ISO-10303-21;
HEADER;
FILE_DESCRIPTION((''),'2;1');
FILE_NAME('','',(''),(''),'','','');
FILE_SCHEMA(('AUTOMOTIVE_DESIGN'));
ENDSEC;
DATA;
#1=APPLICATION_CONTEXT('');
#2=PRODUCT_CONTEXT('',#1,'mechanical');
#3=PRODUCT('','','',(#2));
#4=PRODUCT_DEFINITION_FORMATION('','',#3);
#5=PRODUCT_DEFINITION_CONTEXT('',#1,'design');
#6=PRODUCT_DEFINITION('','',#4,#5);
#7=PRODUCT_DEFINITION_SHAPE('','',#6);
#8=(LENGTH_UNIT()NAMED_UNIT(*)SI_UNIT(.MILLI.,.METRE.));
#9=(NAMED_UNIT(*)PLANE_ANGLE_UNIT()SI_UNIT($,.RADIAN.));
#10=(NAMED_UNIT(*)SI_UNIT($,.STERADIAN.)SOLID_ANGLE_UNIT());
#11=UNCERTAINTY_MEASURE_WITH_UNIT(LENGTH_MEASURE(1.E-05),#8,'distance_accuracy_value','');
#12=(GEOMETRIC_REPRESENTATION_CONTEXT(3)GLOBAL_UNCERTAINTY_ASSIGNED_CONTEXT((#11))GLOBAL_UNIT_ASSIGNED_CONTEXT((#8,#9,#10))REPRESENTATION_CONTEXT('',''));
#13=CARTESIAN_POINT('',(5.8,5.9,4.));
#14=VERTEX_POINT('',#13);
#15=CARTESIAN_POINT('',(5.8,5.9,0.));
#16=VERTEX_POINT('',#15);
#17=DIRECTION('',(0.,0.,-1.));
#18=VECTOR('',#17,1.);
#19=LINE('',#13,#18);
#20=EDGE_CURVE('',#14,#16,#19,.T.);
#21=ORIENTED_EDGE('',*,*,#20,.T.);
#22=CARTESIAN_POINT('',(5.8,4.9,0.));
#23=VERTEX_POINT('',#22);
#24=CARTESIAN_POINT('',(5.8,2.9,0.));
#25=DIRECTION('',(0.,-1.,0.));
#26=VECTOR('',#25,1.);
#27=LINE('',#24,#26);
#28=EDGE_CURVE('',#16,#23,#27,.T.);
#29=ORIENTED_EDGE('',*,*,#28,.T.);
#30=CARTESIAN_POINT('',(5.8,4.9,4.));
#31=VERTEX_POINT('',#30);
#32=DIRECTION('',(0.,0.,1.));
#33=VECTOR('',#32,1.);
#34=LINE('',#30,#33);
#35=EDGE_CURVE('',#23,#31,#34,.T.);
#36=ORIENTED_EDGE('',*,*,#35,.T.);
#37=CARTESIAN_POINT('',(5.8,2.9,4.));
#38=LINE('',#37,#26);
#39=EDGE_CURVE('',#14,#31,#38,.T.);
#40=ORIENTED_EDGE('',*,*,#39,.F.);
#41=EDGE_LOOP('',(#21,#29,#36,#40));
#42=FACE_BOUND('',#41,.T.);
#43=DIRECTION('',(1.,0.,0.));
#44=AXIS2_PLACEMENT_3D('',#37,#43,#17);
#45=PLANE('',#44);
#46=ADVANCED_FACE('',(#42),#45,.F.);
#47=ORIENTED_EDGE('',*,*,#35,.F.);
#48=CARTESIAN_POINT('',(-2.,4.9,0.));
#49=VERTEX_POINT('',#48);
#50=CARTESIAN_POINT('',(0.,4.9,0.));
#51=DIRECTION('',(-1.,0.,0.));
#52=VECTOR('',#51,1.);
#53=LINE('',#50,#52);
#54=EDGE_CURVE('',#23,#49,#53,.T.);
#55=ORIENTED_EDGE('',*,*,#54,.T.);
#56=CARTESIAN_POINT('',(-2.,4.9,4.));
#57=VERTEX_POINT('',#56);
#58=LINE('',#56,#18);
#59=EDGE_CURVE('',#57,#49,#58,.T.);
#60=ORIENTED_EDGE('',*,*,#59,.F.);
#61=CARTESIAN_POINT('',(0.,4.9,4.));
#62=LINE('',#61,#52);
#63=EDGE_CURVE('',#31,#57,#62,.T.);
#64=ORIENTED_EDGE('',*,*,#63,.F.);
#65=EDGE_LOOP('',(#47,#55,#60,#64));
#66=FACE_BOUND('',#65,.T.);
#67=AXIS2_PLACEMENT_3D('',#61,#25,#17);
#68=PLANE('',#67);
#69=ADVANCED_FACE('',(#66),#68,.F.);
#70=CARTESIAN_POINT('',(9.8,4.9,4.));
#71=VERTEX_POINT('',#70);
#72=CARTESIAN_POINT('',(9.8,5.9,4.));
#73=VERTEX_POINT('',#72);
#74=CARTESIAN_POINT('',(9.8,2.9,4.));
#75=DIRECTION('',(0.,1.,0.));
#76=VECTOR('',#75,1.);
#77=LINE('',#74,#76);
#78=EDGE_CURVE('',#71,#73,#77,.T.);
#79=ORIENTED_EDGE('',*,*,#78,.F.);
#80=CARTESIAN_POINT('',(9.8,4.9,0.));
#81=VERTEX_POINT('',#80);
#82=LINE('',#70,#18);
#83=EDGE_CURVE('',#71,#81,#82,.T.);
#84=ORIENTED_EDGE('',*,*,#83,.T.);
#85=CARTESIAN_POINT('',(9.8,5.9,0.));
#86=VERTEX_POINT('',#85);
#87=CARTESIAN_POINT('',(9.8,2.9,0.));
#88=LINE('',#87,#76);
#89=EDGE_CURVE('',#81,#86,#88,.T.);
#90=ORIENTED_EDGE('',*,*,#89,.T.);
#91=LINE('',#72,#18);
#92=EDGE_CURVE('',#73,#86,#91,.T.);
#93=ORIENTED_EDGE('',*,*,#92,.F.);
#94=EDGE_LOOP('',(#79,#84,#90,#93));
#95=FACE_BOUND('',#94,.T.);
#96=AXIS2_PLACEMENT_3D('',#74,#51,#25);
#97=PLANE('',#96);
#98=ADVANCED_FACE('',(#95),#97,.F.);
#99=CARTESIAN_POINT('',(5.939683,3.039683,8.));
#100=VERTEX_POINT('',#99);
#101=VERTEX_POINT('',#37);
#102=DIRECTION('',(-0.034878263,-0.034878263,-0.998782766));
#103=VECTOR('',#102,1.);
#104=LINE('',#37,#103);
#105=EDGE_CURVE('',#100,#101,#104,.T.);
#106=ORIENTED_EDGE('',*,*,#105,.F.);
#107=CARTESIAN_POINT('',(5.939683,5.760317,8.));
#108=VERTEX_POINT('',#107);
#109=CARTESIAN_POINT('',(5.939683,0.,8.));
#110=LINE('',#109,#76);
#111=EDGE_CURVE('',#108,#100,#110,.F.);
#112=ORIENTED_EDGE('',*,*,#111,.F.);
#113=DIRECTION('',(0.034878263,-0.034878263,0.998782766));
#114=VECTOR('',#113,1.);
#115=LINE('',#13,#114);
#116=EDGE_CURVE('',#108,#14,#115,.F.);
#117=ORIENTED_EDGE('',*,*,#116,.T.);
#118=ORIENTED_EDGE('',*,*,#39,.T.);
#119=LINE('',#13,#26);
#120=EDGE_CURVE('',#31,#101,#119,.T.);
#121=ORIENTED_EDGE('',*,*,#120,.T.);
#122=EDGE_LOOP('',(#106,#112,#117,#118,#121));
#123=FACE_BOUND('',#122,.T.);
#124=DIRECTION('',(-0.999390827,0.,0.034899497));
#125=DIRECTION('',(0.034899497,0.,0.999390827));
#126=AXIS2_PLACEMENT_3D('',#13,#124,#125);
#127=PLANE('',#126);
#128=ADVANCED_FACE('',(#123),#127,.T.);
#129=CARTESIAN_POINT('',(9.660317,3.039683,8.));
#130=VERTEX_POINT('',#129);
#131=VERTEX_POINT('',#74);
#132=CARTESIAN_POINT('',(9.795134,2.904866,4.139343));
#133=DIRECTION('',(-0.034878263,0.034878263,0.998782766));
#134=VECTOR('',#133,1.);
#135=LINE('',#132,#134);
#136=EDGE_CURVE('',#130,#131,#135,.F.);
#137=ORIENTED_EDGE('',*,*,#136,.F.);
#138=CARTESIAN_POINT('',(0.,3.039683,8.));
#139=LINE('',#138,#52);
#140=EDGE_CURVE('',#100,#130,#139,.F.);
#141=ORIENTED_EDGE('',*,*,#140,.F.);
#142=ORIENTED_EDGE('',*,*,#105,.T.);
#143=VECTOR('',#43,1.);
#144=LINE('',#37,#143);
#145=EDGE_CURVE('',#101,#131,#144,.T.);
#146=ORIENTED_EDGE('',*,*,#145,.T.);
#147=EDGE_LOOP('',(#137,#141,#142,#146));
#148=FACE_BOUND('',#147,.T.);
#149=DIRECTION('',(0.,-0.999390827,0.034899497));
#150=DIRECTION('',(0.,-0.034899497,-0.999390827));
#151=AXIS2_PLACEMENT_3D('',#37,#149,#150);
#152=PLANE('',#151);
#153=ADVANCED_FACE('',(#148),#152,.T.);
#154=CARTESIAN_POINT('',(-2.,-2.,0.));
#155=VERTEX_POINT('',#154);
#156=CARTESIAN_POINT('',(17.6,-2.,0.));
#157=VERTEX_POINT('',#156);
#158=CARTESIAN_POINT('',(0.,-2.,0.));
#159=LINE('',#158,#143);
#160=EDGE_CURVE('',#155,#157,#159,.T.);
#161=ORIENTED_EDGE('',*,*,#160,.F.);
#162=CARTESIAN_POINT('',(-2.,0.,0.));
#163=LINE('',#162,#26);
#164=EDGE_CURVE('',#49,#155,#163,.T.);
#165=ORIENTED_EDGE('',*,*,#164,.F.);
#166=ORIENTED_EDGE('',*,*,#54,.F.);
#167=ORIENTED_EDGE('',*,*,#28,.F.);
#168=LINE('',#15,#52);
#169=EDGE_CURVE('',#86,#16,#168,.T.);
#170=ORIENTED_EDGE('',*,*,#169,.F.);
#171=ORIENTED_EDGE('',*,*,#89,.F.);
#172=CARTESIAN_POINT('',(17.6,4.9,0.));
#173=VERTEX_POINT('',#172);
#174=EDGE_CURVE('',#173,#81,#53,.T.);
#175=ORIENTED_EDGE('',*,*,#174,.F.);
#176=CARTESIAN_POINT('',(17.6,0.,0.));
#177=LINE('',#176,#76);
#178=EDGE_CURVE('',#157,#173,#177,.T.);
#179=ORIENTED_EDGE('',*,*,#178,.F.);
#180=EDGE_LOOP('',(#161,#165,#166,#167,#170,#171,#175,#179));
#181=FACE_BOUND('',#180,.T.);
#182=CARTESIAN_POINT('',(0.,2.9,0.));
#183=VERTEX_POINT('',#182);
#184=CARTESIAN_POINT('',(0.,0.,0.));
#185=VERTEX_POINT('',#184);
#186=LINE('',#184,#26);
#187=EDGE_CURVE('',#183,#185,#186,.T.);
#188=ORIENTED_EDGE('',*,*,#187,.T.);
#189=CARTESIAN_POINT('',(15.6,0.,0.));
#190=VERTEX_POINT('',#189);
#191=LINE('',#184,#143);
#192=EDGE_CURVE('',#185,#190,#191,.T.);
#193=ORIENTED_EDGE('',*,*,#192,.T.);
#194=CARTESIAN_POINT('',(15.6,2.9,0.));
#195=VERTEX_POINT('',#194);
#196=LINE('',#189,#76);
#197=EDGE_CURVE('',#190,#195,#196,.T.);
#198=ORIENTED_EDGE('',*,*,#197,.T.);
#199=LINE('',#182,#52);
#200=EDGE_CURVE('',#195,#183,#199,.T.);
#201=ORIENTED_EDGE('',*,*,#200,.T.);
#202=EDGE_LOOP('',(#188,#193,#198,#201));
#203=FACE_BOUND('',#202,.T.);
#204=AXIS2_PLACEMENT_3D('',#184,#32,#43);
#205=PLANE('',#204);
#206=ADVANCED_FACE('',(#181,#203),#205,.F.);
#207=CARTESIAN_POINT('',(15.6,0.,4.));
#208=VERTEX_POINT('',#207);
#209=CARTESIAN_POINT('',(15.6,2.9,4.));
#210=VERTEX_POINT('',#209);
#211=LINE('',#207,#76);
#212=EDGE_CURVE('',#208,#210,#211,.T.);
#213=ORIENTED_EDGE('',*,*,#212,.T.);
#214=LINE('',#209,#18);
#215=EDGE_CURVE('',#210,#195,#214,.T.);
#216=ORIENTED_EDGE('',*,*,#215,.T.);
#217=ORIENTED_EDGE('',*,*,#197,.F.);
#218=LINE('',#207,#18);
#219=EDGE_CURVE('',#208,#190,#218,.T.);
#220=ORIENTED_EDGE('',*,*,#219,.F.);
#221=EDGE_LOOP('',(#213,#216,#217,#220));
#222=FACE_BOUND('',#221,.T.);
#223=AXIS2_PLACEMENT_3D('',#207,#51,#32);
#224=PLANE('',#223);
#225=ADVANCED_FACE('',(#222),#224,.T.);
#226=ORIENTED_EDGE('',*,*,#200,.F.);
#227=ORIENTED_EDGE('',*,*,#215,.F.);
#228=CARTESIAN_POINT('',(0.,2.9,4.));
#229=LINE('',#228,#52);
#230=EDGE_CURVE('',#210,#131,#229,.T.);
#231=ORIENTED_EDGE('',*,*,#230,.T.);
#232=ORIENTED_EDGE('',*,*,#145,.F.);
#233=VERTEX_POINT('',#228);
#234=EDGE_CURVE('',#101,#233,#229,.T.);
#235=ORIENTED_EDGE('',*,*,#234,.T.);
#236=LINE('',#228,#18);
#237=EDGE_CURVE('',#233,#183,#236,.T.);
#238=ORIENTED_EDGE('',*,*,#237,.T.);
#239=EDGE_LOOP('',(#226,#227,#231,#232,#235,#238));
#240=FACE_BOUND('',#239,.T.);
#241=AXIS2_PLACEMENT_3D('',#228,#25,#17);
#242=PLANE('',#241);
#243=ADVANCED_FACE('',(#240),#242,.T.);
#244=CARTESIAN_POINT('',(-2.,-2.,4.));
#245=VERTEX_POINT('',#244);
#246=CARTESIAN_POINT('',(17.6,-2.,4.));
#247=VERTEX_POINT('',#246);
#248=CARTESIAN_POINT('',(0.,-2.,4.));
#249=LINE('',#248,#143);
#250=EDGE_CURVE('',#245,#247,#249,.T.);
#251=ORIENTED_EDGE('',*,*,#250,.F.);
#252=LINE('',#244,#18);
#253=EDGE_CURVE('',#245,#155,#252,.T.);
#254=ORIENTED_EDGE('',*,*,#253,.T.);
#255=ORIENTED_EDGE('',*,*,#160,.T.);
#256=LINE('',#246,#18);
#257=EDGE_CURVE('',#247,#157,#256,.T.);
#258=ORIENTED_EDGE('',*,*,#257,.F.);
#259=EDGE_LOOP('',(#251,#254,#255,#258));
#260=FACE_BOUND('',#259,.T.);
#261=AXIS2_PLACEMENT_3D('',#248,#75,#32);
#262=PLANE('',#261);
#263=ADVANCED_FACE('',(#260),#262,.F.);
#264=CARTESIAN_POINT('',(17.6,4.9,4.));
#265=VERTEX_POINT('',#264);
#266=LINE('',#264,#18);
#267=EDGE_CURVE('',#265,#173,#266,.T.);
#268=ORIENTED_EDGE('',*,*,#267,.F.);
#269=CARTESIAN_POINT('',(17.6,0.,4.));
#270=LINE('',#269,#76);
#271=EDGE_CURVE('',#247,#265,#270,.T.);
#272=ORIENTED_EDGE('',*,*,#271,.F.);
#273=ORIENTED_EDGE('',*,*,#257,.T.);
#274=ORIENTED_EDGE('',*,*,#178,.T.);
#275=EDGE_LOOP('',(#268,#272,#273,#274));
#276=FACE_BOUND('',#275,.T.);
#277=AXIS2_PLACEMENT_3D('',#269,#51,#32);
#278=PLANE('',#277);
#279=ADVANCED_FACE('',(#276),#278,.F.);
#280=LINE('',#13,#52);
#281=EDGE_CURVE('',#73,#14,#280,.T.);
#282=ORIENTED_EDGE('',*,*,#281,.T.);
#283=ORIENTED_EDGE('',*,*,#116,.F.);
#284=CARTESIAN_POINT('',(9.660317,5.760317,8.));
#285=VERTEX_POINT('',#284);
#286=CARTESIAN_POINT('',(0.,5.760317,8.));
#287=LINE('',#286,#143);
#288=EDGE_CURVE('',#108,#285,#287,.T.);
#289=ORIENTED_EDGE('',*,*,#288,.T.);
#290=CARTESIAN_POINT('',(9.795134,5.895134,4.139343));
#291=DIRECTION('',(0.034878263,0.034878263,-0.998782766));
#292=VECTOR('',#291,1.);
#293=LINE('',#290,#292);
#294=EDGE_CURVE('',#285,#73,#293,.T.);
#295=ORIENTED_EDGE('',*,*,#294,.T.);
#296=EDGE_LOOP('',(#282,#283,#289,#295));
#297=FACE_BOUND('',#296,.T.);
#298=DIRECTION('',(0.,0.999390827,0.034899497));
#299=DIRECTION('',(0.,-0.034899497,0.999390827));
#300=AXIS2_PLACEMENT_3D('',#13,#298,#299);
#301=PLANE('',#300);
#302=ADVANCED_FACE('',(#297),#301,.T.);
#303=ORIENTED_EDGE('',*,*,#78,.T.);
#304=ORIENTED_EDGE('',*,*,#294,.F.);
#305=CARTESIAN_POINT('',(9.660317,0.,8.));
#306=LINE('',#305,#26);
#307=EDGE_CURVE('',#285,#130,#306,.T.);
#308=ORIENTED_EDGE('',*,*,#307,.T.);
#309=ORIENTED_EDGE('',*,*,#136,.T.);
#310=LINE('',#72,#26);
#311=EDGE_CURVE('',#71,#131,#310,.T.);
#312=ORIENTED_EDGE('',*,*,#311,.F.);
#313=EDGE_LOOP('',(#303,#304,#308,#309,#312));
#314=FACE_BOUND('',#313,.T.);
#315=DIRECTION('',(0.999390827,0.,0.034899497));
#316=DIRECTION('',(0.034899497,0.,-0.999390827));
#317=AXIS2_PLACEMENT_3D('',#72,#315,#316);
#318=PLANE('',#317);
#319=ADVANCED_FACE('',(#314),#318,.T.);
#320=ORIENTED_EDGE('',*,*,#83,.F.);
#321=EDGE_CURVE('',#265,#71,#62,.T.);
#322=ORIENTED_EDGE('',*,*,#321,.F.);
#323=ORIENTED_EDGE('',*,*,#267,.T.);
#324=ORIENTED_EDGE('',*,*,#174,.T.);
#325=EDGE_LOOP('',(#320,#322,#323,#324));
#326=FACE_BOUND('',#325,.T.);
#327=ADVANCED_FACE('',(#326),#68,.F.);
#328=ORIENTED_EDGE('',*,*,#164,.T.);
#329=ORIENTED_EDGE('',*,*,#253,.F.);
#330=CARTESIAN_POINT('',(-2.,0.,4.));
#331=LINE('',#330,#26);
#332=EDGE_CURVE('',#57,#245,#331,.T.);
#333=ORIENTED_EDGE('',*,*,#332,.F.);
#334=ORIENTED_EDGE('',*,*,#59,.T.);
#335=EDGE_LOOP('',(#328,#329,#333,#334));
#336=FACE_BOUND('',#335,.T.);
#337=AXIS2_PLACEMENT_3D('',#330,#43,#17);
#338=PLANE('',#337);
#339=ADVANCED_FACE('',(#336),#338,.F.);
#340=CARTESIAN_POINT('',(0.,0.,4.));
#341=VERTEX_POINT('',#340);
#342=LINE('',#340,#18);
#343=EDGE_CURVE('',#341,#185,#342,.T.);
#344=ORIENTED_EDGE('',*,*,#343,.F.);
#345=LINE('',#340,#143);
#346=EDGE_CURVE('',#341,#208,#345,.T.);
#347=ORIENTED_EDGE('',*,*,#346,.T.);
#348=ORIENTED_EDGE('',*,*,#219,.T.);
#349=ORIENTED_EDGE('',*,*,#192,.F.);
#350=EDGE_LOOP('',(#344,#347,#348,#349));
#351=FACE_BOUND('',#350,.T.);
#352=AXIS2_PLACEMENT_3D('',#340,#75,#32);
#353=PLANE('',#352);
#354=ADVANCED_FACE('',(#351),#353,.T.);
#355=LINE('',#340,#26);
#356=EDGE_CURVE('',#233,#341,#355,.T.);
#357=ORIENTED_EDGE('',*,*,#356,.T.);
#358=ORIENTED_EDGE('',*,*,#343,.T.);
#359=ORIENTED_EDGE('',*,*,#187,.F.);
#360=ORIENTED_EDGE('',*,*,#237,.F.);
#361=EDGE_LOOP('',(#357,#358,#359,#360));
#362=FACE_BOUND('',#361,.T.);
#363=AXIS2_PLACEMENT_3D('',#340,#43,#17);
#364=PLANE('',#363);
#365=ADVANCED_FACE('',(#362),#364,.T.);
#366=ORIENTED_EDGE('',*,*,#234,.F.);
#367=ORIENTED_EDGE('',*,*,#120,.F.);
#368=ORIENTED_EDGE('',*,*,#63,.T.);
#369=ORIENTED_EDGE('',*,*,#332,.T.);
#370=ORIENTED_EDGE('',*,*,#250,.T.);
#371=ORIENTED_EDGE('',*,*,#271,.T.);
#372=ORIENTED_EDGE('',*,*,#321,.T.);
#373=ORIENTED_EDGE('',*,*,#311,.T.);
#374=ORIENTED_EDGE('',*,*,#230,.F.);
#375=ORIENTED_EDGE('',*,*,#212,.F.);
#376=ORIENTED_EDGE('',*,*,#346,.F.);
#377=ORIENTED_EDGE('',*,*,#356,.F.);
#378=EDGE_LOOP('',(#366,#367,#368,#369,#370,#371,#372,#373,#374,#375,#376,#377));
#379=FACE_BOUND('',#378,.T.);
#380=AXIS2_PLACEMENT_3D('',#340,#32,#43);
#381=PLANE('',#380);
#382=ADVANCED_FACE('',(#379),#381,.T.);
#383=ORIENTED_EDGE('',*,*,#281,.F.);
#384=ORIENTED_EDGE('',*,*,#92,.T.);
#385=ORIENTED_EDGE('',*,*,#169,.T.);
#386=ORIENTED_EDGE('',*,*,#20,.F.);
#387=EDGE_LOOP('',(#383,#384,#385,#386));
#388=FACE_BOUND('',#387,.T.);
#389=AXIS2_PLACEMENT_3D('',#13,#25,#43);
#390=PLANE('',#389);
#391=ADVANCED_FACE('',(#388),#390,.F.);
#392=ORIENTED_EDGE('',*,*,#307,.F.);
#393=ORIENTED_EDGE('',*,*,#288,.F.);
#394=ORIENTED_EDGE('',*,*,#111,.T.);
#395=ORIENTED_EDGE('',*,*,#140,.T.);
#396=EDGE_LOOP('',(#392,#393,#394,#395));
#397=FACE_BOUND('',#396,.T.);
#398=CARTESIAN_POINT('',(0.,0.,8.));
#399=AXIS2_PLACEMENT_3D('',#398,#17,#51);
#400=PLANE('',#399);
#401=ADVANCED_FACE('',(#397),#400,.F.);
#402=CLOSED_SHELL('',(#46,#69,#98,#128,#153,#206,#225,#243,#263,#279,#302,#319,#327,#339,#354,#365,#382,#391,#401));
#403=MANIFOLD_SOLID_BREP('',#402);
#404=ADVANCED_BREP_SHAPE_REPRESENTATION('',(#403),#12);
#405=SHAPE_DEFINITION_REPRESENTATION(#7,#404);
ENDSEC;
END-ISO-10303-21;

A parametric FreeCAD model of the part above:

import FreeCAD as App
import Part
import Sketcher

V = App.Vector
Q = App.Units.Quantity


def add_polygon(sketch, points):
    """Adds a closed chain of lines whose ends are joined by coincident constraints."""
    first, n = sketch.GeometryCount, len(points)
    for a, b in zip(points, points[1:] + points[:1]):
        sketch.addGeometry(Part.LineSegment(App.Vector(*a, 0), App.Vector(*b, 0)), False)
    for i in range(n):
        sketch.addConstraint(Sketcher.Constraint("Coincident", first + i, 2, first + (i + 1) % n, 1))

doc = App.newDocument("Part")
body = doc.addObject("PartDesign::Body", "Body")

# Sketch on XY plane
sketch1 = body.newObject("Sketcher::SketchObject", "Sketch")
sketch1.AttachmentSupport = (doc.getObject("XY_Plane"), [""])
sketch1.MapMode = "FlatFace"
add_polygon(sketch1, [(-2, 4.9), (-2, -2), (17.6, -2), (17.6, 4.9)])  # lines 0-3
add_polygon(sketch1, [(15.6, 0), (0, 0), (0, 2.9), (15.6, 2.9)])  # lines 4-7
sketch1.addConstraint([
    Sketcher.Constraint("Vertical", 0),
    Sketcher.Constraint("Horizontal", 1),
    Sketcher.Constraint("Vertical", 2),
    Sketcher.Constraint("Horizontal", 3),
    Sketcher.Constraint("Horizontal", 4),
    Sketcher.Constraint("Vertical", 5),
    Sketcher.Constraint("Horizontal", 6),
    Sketcher.Constraint("Vertical", 7),
    Sketcher.Constraint("Coincident", 4, 2, -1, 1),
    Sketcher.Constraint("DistanceX", 1, 1, 1, 2, Q("19.6 mm")),
    Sketcher.Constraint("DistanceX", 4, 2, 4, 1, Q("15.6 mm")),
    Sketcher.Constraint("DistanceY", 0, 2, 0, 1, Q("6.9 mm")),
    Sketcher.Constraint("DistanceY", 5, 1, 5, 2, Q("2.9 mm")),
    Sketcher.Constraint("DistanceX", 0, 2, -1, 1, Q("2 mm")),
    Sketcher.Constraint("DistanceY", 0, 2, -1, 1, Q("2 mm")),
])
pad1 = body.newObject("PartDesign::Pad", "Pad")
pad1.Profile = sketch1
pad1.Length = 4

# Sketch on XY plane
sketch2 = body.newObject("Sketcher::SketchObject", "Sketch001")
sketch2.AttachmentSupport = (doc.getObject("XY_Plane"), [""])
sketch2.MapMode = "FlatFace"
add_polygon(sketch2, [(5.8, 5.9), (5.8, 2.9), (9.8, 2.9), (9.8, 5.9)])  # lines 0-3
sketch2.addConstraint([
    Sketcher.Constraint("Vertical", 0),
    Sketcher.Constraint("Horizontal", 1),
    Sketcher.Constraint("Vertical", 2),
    Sketcher.Constraint("Horizontal", 3),
    Sketcher.Constraint("DistanceX", 1, 1, 1, 2, Q("4 mm")),
    Sketcher.Constraint("DistanceY", 0, 2, 0, 1, Q("3 mm")),
    Sketcher.Constraint("DistanceX", -1, 1, 0, 2, Q("5.8 mm")),
    Sketcher.Constraint("DistanceY", -1, 1, 0, 2, Q("2.9 mm")),
])
pad2 = body.newObject("PartDesign::Pad", "Pad001")
pad2.Profile = sketch2
pad2.Length = 4

# Sketch on XY plane
sketch3 = body.newObject("Sketcher::SketchObject", "Sketch002")
sketch3.AttachmentSupport = (doc.getObject("XY_Plane"), [""])
sketch3.MapMode = "FlatFace"
sketch3.AttachmentOffset = App.Placement(V(0, 0, 4), App.Rotation())
add_polygon(sketch3, [(5.8, 5.9), (5.8, 2.9), (9.8, 2.9), (9.8, 5.9)])  # lines 0-3
sketch3.addConstraint([
    Sketcher.Constraint("Vertical", 0),
    Sketcher.Constraint("Horizontal", 1),
    Sketcher.Constraint("Vertical", 2),
    Sketcher.Constraint("Horizontal", 3),
    Sketcher.Constraint("DistanceX", 1, 1, 1, 2, Q("4 mm")),
    Sketcher.Constraint("DistanceY", 0, 2, 0, 1, Q("3 mm")),
    Sketcher.Constraint("DistanceX", -1, 1, 0, 2, Q("5.8 mm")),
    Sketcher.Constraint("DistanceY", -1, 1, 0, 2, Q("2.9 mm")),
])
pad3 = body.newObject("PartDesign::Pad", "Pad002")
pad3.Profile = sketch3
pad3.Length = 4
pad3.TaperAngle = -2

doc.recompute()
